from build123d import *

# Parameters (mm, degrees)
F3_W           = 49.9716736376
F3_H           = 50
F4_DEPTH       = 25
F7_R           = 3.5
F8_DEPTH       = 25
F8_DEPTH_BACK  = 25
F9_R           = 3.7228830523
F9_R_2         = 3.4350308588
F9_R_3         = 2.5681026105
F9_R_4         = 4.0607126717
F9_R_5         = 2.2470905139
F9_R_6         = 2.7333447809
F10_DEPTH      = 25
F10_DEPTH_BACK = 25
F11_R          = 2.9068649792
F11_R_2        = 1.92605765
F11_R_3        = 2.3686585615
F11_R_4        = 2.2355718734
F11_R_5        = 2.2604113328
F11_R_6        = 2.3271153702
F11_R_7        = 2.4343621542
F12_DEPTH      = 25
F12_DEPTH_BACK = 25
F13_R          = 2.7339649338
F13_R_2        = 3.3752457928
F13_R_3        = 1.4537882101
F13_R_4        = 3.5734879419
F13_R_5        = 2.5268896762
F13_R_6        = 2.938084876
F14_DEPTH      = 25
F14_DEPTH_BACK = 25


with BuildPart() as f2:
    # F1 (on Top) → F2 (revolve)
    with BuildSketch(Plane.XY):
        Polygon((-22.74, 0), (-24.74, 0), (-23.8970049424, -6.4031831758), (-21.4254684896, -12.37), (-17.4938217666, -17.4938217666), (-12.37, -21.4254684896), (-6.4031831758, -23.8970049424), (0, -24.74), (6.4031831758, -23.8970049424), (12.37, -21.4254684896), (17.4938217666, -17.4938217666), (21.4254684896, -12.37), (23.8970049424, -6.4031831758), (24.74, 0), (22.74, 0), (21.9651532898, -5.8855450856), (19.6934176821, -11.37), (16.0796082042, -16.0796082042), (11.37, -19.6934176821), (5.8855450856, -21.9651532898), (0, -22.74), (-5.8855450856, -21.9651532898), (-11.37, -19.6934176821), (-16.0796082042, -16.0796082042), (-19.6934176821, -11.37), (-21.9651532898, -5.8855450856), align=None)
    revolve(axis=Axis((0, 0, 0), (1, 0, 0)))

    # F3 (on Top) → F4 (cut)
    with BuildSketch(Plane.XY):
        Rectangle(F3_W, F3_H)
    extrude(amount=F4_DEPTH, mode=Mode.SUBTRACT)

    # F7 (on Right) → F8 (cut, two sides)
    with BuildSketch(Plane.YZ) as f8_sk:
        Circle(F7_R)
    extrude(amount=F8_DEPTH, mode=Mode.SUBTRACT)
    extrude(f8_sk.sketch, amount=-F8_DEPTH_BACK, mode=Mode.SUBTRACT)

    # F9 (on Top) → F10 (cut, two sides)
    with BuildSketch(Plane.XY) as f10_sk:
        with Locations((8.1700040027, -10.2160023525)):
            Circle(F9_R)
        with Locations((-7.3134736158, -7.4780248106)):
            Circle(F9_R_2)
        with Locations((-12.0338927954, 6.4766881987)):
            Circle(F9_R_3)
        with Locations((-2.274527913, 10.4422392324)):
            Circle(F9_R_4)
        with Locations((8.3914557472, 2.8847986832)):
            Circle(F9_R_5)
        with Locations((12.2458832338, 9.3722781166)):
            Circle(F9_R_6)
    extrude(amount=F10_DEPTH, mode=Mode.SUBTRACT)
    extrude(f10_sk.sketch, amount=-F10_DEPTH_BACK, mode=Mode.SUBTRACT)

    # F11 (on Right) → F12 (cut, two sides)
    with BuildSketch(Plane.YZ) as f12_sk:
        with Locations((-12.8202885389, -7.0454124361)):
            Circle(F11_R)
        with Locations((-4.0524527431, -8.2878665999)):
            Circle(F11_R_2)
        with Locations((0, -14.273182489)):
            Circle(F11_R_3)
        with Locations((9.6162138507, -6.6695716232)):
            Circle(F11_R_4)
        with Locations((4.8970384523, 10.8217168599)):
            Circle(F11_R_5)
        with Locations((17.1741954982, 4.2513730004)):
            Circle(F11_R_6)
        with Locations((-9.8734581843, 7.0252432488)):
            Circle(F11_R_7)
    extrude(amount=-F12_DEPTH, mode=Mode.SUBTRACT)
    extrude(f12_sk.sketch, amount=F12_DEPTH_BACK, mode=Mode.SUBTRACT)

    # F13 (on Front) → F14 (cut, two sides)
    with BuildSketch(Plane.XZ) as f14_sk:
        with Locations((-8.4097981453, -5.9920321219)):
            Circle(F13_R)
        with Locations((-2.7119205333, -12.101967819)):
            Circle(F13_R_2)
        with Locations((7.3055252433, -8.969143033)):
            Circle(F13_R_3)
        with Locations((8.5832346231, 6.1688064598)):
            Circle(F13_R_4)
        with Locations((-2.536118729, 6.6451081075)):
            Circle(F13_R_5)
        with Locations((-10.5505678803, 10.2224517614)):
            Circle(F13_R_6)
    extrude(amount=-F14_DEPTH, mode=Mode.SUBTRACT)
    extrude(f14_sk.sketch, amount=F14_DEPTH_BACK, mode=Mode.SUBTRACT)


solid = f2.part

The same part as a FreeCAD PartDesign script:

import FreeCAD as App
import Part
import Sketcher
from FreeCAD import Vector
Q = App.Units.Quantity

doc = App.newDocument("Part")
body = doc.addObject("PartDesign::Body", "Body")

# Sketch on XY plane
sketch1 = doc.addObject("Sketcher::SketchObject", "Sketch")
body.addObject(sketch1)
sketch1.AttachmentSupport = (doc.XY_Plane, [""])
sketch1.MapMode = "FlatFace"
sketch1.addGeometry([
    Part.LineSegment(Vector(-22.7, 0, 0), Vector(-24.7, 0, 0)),  # 0
    Part.LineSegment(Vector(-24.7, 0, 0), Vector(-23.9, -6.4, 0)),  # 1
    Part.LineSegment(Vector(-23.9, -6.4, 0), Vector(-21.4, -12.4, 0)),  # 2
    Part.LineSegment(Vector(-21.4, -12.4, 0), Vector(-17.5, -17.5, 0)),  # 3
    Part.LineSegment(Vector(-17.5, -17.5, 0), Vector(-12.4, -21.4, 0)),  # 4
    Part.LineSegment(Vector(-12.4, -21.4, 0), Vector(-6.4, -23.9, 0)),  # 5
    Part.LineSegment(Vector(-6.4, -23.9, 0), Vector(0, -24.7, 0)),  # 6
    Part.LineSegment(Vector(0, -24.7, 0), Vector(6.4, -23.9, 0)),  # 7
    Part.LineSegment(Vector(6.4, -23.9, 0), Vector(12.4, -21.4, 0)),  # 8
    Part.LineSegment(Vector(12.4, -21.4, 0), Vector(17.5, -17.5, 0)),  # 9
    Part.LineSegment(Vector(17.5, -17.5, 0), Vector(21.4, -12.4, 0)),  # 10
    Part.LineSegment(Vector(21.4, -12.4, 0), Vector(23.9, -6.4, 0)),  # 11
    Part.LineSegment(Vector(23.9, -6.4, 0), Vector(24.7, 0, 0)),  # 12
    Part.LineSegment(Vector(24.7, 0, 0), Vector(22.7, 0, 0)),  # 13
    Part.LineSegment(Vector(22.7, 0, 0), Vector(22, -5.9, 0)),  # 14
    Part.LineSegment(Vector(22, -5.9, 0), Vector(19.7, -11.4, 0)),  # 15
    Part.LineSegment(Vector(19.7, -11.4, 0), Vector(16.1, -16.1, 0)),  # 16
    Part.LineSegment(Vector(16.1, -16.1, 0), Vector(11.4, -19.7, 0)),  # 17
    Part.LineSegment(Vector(11.4, -19.7, 0), Vector(5.9, -22, 0)),  # 18
    Part.LineSegment(Vector(5.9, -22, 0), Vector(0, -22.7, 0)),  # 19
    Part.LineSegment(Vector(0, -22.7, 0), Vector(-5.9, -22, 0)),  # 20
    Part.LineSegment(Vector(-5.9, -22, 0), Vector(-11.4, -19.7, 0)),  # 21
    Part.LineSegment(Vector(-11.4, -19.7, 0), Vector(-16.1, -16.1, 0)),  # 22
    Part.LineSegment(Vector(-16.1, -16.1, 0), Vector(-19.7, -11.4, 0)),  # 23
    Part.LineSegment(Vector(-19.7, -11.4, 0), Vector(-22, -5.9, 0)),  # 24
    Part.LineSegment(Vector(-22, -5.9, 0), Vector(-22.7, 0, 0)),  # 25
], False)
sketch1.addConstraint([
    Sketcher.Constraint("Coincident", 0, 2, 1, 1),
    Sketcher.Constraint("Coincident", 1, 2, 2, 1),
    Sketcher.Constraint("Coincident", 2, 2, 3, 1),
    Sketcher.Constraint("Coincident", 3, 2, 4, 1),
    Sketcher.Constraint("Coincident", 4, 2, 5, 1),
    Sketcher.Constraint("Coincident", 5, 2, 6, 1),
    Sketcher.Constraint("Coincident", 6, 2, 7, 1),
    Sketcher.Constraint("Coincident", 7, 2, 8, 1),
    Sketcher.Constraint("Coincident", 8, 2, 9, 1),
    Sketcher.Constraint("Coincident", 9, 2, 10, 1),
    Sketcher.Constraint("Coincident", 10, 2, 11, 1),
    Sketcher.Constraint("Coincident", 11, 2, 12, 1),
    Sketcher.Constraint("Coincident", 12, 2, 13, 1),
    Sketcher.Constraint("Coincident", 13, 2, 14, 1),
    Sketcher.Constraint("Coincident", 14, 2, 15, 1),
    Sketcher.Constraint("Coincident", 15, 2, 16, 1),
    Sketcher.Constraint("Coincident", 16, 2, 17, 1),
    Sketcher.Constraint("Coincident", 17, 2, 18, 1),
    Sketcher.Constraint("Coincident", 18, 2, 19, 1),
    Sketcher.Constraint("Coincident", 19, 2, 20, 1),
    Sketcher.Constraint("Coincident", 20, 2, 21, 1),
    Sketcher.Constraint("Coincident", 21, 2, 22, 1),
    Sketcher.Constraint("Coincident", 22, 2, 23, 1),
    Sketcher.Constraint("Coincident", 23, 2, 24, 1),
    Sketcher.Constraint("Coincident", 24, 2, 25, 1),
    Sketcher.Constraint("Coincident", 25, 2, 0, 1),
    Sketcher.Constraint("Horizontal", 0),
    Sketcher.Constraint("Horizontal", 13),
    Sketcher.Constraint("Symmetric", 0, 2, 12, 2, -1, 1),
    Sketcher.Constraint("Symmetric", 5, 2, 7, 2, -2),
    Sketcher.Constraint("Symmetric", 4, 2, 8, 2, -2),
    Sketcher.Constraint("Symmetric", 3, 2, 9, 2, -2),
    Sketcher.Constraint("Symmetric", 2, 2, 10, 2, -2),
    Sketcher.Constraint("Symmetric", 1, 2, 11, 2, -2),
    Sketcher.Constraint("Symmetric", 18, 2, 20, 2, -2),
    Sketcher.Constraint("Symmetric", 17, 2, 21, 2, -2),
    Sketcher.Constraint("Symmetric", 16, 2, 22, 2, -2),
    Sketcher.Constraint("Symmetric", 15, 2, 23, 2, -2),
    Sketcher.Constraint("Symmetric", 14, 2, 24, 2, -2),
    Sketcher.Constraint("Symmetric", 13, 2, 25, 2, -2),
    Sketcher.Constraint("PointOnObject", 6, 2, -2),
    Sketcher.Constraint("PointOnObject", 19, 2, -2),
    Sketcher.Constraint("Perpendicular", 1, 7),
    Sketcher.Constraint("Perpendicular", 2, 8),
    Sketcher.Constraint("Perpendicular", 3, 9),
    Sketcher.Constraint("Parallel", 12, 14),
    Sketcher.Constraint("Parallel", 11, 15),
    Sketcher.Constraint("Parallel", 10, 16),
    Sketcher.Constraint("Parallel", 9, 17),
    Sketcher.Constraint("Parallel", 8, 18),
    Sketcher.Constraint("Parallel", 7, 19),
    Sketcher.Constraint("Equal", 1, 2),
    Sketcher.Constraint("Equal", 2, 3),
    Sketcher.Constraint("Equal", 3, 4),
    Sketcher.Constraint("Equal", 4, 5),
    Sketcher.Constraint("Equal", 5, 6),
    Sketcher.Constraint("Equal", 14, 15),
    Sketcher.Constraint("Equal", 15, 16),
    Sketcher.Constraint("Equal", 16, 17),
    Sketcher.Constraint("Equal", 17, 18),
    Sketcher.Constraint("Equal", 18, 19),
    Sketcher.Constraint("DistanceX", 0, 2, 0, 1, Q("2 mm")),
    Sketcher.Constraint("Angle", 1, Q("-82.5 deg")),
    Sketcher.Constraint("Angle", 2, Q("-67.5 deg")),
    Sketcher.Constraint("Angle", 3, Q("-52.5 deg")),
    Sketcher.Constraint("DistanceX", 0, 2, -1, 1, Q("24.74 mm")),
])
revolution = doc.addObject("PartDesign::Revolution", "Revolution")
body.addObject(revolution)
revolution.Profile = sketch1
revolution.ReferenceAxis = (sketch1, ["H_Axis"])
revolution.Angle = 360

# Sketch on XY plane
sketch2 = doc.addObject("Sketcher::SketchObject", "Sketch001")
body.addObject(sketch2)
sketch2.AttachmentSupport = (doc.XY_Plane, [""])
sketch2.MapMode = "FlatFace"
sketch2.addGeometry([
    Part.LineSegment(Vector(-25, 25, 0), Vector(-25, -25, 0)),
    Part.LineSegment(Vector(-25, -25, 0), Vector(25, -25, 0)),
    Part.LineSegment(Vector(25, -25, 0), Vector(25, 25, 0)),
    Part.LineSegment(Vector(25, 25, 0), Vector(-25, 25, 0)),
], False)
sketch2.addConstraint([
    Sketcher.Constraint("Coincident", 0, 2, 1, 1),
    Sketcher.Constraint("Coincident", 1, 2, 2, 1),
    Sketcher.Constraint("Coincident", 2, 2, 3, 1),
    Sketcher.Constraint("Coincident", 3, 2, 0, 1),
    Sketcher.Constraint("Vertical", 0),
    Sketcher.Constraint("Horizontal", 1),
    Sketcher.Constraint("Vertical", 2),
    Sketcher.Constraint("Horizontal", 3),
    Sketcher.Constraint("Symmetric", 0, 2, 2, 2, -1, 1),
    Sketcher.Constraint("DistanceY", 0, 2, 0, 1, Q("50 mm")),
    Sketcher.Constraint("DistanceX", 1, 1, 1, 2, Q("49.971674 mm")),
])
pocket1 = doc.addObject("PartDesign::Pocket", "Pocket")
body.addObject(pocket1)
pocket1.Profile = sketch2
pocket1.Length = 25
pocket1.Reversed = True

# Sketch on YZ plane
sketch3 = doc.addObject("Sketcher::SketchObject", "Sketch002")
body.addObject(sketch3)
sketch3.AttachmentSupport = (doc.YZ_Plane, [""])
sketch3.MapMode = "FlatFace"
sketch3.addGeometry(Part.Circle(Vector(0, 0, 0), Vector(0, 0, 1), 3.5), False)
sketch3.addConstraint([
    Sketcher.Constraint("Coincident", 0, 3, -1, 1),
    Sketcher.Constraint("Diameter", 0, Q("7 mm")),
])
pocket2 = doc.addObject("PartDesign::Pocket", "Pocket001")
body.addObject(pocket2)
pocket2.Profile = sketch3
pocket2.Type = "ThroughAll"
pocket2.Midplane = True

# Sketch on XY plane
sketch4 = doc.addObject("Sketcher::SketchObject", "Sketch003")
body.addObject(sketch4)
sketch4.AttachmentSupport = (doc.XY_Plane, [""])
sketch4.MapMode = "FlatFace"
sketch4.addGeometry([
    Part.Circle(Vector(8.2, -10.2, 0), Vector(0, 0, 1), 3.7),  # 0
    Part.Circle(Vector(-7.3, -7.5, 0), Vector(0, 0, 1), 3.4),  # 1
    Part.Circle(Vector(-12, 6.5, 0), Vector(0, 0, 1), 2.6),  # 2
    Part.Circle(Vector(-2.3, 10.4, 0), Vector(0, 0, 1), 4.1),  # 3
    Part.Circle(Vector(8.4, 2.9, 0), Vector(0, 0, 1), 2.2),  # 4
    Part.Circle(Vector(12.2, 9.4, 0), Vector(0, 0, 1), 2.7),  # 5
], False)
sketch4.addConstraint([
    Sketcher.Constraint("Diameter", 1, Q("6.870062 mm")),
    Sketcher.Constraint("Diameter", 4, Q("4.494181 mm")),
    Sketcher.Constraint("Diameter", 5, Q("5.46669 mm")),
    Sketcher.Constraint("Diameter", 0, Q("7.445766 mm")),
    Sketcher.Constraint("Diameter", 2, Q("5.136205 mm")),
    Sketcher.Constraint("Diameter", 3, Q("8.121425 mm")),
    Sketcher.Constraint("DistanceY", -1, 1, 4, 3, Q("2.884799 mm")),
    Sketcher.Constraint("DistanceY", 0, 3, 4, 3, Q("13.100801 mm")),
    Sketcher.Constraint("DistanceY", -1, 1, 2, 3, Q("6.476688 mm")),
    Sketcher.Constraint("DistanceY", -1, 1, 3, 3, Q("10.442239 mm")),
    Sketcher.Constraint("DistanceY", -1, 1, 5, 3, Q("9.372278 mm")),
    Sketcher.Constraint("DistanceX", 2, 3, 1, 3, Q("4.720419 mm")),
    Sketcher.Constraint("DistanceX", 3, 3, 0, 3, Q("10.444532 mm")),
    Sketcher.Constraint("DistanceX", 0, 3, 4, 3, Q("0.221452 mm")),
    Sketcher.Constraint("DistanceX", 1, 3, 4, 3, Q("15.704929 mm")),
    Sketcher.Constraint("DistanceX", 3, 3, 5, 3, Q("14.520411 mm")),
    Sketcher.Constraint("DistanceX", -1, 1, 0, 3, Q("8.170004 mm")),
    Sketcher.Constraint("DistanceY", 1, 3, -1, 1, Q("7.478025 mm")),
])
pocket3 = doc.addObject("PartDesign::Pocket", "Pocket002")
body.addObject(pocket3)
pocket3.Profile = sketch4
pocket3.Type = "ThroughAll"
pocket3.Midplane = True

# Sketch on YZ plane
sketch5 = doc.addObject("Sketcher::SketchObject", "Sketch004")
body.addObject(sketch5)
sketch5.AttachmentSupport = (doc.YZ_Plane, [""])
sketch5.MapMode = "FlatFace"
sketch5.addGeometry([
    Part.Circle(Vector(-12.8, -7, 0), Vector(0, 0, 1), 2.9),  # 0
    Part.Circle(Vector(-4.1, -8.3, 0), Vector(0, 0, 1), 1.9),  # 1
    Part.Circle(Vector(0, -14.3, 0), Vector(0, 0, 1), 2.4),  # 2
    Part.Circle(Vector(9.6, -6.7, 0), Vector(0, 0, 1), 2.2),  # 3
    Part.Circle(Vector(4.9, 10.8, 0), Vector(0, 0, 1), 2.3),  # 4
    Part.Circle(Vector(17.2, 4.3, 0), Vector(0, 0, 1), 2.3),  # 5
    Part.Circle(Vector(-9.9, 7, 0), Vector(0, 0, 1), 2.4),  # 6
], False)
sketch5.addConstraint([
    Sketcher.Constraint("PointOnObject", 2, 3, -2),
    Sketcher.Constraint("Diameter", 0, Q("5.81373 mm")),
    Sketcher.Constraint("Diameter", 5, Q("4.654231 mm")),
    Sketcher.Constraint("Diameter", 1, Q("3.852115 mm")),
    Sketcher.Constraint("Diameter", 2, Q("4.737317 mm")),
    Sketcher.Constraint("Diameter", 3, Q("4.471144 mm")),
    Sketcher.Constraint("Diameter", 4, Q("4.520823 mm")),
    Sketcher.Constraint("Diameter", 6, Q("4.868724 mm")),
    Sketcher.Constraint("DistanceY", 2, 3, 4, 3, Q("25.094899 mm")),
    Sketcher.Constraint("DistanceX", 0, 3, -1, 1, Q("12.820289 mm")),
    Sketcher.Constraint("DistanceY", 3, 3, -1, 1, Q("6.669572 mm")),
    Sketcher.Constraint("DistanceX", -1, 1, 4, 3, Q("4.897038 mm")),
    Sketcher.Constraint("DistanceX", 6, 3, -1, 1, Q("9.873458 mm")),
    Sketcher.Constraint("DistanceY", 2, 3, 0, 3, Q("7.22777 mm")),
    Sketcher.Constraint("DistanceY", 2, 3, 3, 3, Q("7.603611 mm")),
    Sketcher.Constraint("DistanceX", 1, 3, 4, 3, Q("8.949491 mm")),
    Sketcher.Constraint("DistanceX", 3, 3, 5, 3, Q("7.557982 mm")),
    Sketcher.Constraint("DistanceX", 1, 3, 5, 3, Q("21.226648 mm")),
    Sketcher.Constraint("DistanceY", 1, 3, 5, 3, Q("12.53924 mm")),
    Sketcher.Constraint("DistanceY", 1, 3, 6, 3, Q("15.31311 mm")),
    Sketcher.Constraint("DistanceY", 1, 3, -1, 1, Q("8.287867 mm")),
])
pocket4 = doc.addObject("PartDesign::Pocket", "Pocket003")
body.addObject(pocket4)
pocket4.Profile = sketch5
pocket4.Type = "ThroughAll"
pocket4.Midplane = True

# Sketch on XZ plane
sketch6 = doc.addObject("Sketcher::SketchObject", "Sketch005")
body.addObject(sketch6)
sketch6.AttachmentSupport = (doc.XZ_Plane, [""])
sketch6.MapMode = "FlatFace"
sketch6.addGeometry([
    Part.Circle(Vector(-8.4, -6, 0), Vector(0, 0, 1), 2.7),  # 0
    Part.Circle(Vector(-2.7, -12.1, 0), Vector(0, 0, 1), 3.4),  # 1
    Part.Circle(Vector(7.3, -9, 0), Vector(0, 0, 1), 1.5),  # 2
    Part.Circle(Vector(8.6, 6.2, 0), Vector(0, 0, 1), 3.6),  # 3
    Part.Circle(Vector(-2.5, 6.6, 0), Vector(0, 0, 1), 2.5),  # 4
    Part.Circle(Vector(-10.6, 10.2, 0), Vector(0, 0, 1), 2.9),  # 5
], False)
sketch6.addConstraint([
    Sketcher.Constraint("Diameter", 0, Q("5.46793 mm")),
    Sketcher.Constraint("Diameter", 1, Q("6.750492 mm")),
    Sketcher.Constraint("Diameter", 4, Q("5.053779 mm")),
    Sketcher.Constraint("Diameter", 5, Q("5.87617 mm")),
    Sketcher.Constraint("Diameter", 2, Q("2.907576 mm")),
    Sketcher.Constraint("Diameter", 3, Q("7.146976 mm")),
    Sketcher.Constraint("DistanceX", 0, 3, -1, 1, Q("8.409798 mm")),
    Sketcher.Constraint("DistanceY", 3, 3, 4, 3, Q("0.476302 mm")),
    Sketcher.Constraint("DistanceX", 1, 3, 4, 3, Q("0.175802 mm")),
    Sketcher.Constraint("DistanceX", 1, 3, -1, 1, Q("2.711921 mm")),
    Sketcher.Constraint("DistanceY", -1, 1, 4, 3, Q("6.645108 mm")),
    Sketcher.Constraint("DistanceY", -1, 1, 5, 3, Q("10.222452 mm")),
    Sketcher.Constraint("DistanceY", 2, 3, 0, 3, Q("2.977111 mm")),
    Sketcher.Constraint("DistanceX", 2, 3, 3, 3, Q("1.277709 mm")),
    Sketcher.Constraint("DistanceY", 2, 3, 3, 3, Q("15.137949 mm")),
    Sketcher.Constraint("DistanceX", 5, 3, 4, 3, Q("8.014449 mm")),
    Sketcher.Constraint("DistanceY", 1, 3, 5, 3, Q("22.32442 mm")),
    Sketcher.Constraint("DistanceX", -1, 1, 2, 3, Q("7.305525 mm")),
])
pocket5 = doc.addObject("PartDesign::Pocket", "Pocket004")
body.addObject(pocket5)
pocket5.Profile = sketch6
pocket5.Type = "ThroughAll"
pocket5.Midplane = True

doc.recompute()
